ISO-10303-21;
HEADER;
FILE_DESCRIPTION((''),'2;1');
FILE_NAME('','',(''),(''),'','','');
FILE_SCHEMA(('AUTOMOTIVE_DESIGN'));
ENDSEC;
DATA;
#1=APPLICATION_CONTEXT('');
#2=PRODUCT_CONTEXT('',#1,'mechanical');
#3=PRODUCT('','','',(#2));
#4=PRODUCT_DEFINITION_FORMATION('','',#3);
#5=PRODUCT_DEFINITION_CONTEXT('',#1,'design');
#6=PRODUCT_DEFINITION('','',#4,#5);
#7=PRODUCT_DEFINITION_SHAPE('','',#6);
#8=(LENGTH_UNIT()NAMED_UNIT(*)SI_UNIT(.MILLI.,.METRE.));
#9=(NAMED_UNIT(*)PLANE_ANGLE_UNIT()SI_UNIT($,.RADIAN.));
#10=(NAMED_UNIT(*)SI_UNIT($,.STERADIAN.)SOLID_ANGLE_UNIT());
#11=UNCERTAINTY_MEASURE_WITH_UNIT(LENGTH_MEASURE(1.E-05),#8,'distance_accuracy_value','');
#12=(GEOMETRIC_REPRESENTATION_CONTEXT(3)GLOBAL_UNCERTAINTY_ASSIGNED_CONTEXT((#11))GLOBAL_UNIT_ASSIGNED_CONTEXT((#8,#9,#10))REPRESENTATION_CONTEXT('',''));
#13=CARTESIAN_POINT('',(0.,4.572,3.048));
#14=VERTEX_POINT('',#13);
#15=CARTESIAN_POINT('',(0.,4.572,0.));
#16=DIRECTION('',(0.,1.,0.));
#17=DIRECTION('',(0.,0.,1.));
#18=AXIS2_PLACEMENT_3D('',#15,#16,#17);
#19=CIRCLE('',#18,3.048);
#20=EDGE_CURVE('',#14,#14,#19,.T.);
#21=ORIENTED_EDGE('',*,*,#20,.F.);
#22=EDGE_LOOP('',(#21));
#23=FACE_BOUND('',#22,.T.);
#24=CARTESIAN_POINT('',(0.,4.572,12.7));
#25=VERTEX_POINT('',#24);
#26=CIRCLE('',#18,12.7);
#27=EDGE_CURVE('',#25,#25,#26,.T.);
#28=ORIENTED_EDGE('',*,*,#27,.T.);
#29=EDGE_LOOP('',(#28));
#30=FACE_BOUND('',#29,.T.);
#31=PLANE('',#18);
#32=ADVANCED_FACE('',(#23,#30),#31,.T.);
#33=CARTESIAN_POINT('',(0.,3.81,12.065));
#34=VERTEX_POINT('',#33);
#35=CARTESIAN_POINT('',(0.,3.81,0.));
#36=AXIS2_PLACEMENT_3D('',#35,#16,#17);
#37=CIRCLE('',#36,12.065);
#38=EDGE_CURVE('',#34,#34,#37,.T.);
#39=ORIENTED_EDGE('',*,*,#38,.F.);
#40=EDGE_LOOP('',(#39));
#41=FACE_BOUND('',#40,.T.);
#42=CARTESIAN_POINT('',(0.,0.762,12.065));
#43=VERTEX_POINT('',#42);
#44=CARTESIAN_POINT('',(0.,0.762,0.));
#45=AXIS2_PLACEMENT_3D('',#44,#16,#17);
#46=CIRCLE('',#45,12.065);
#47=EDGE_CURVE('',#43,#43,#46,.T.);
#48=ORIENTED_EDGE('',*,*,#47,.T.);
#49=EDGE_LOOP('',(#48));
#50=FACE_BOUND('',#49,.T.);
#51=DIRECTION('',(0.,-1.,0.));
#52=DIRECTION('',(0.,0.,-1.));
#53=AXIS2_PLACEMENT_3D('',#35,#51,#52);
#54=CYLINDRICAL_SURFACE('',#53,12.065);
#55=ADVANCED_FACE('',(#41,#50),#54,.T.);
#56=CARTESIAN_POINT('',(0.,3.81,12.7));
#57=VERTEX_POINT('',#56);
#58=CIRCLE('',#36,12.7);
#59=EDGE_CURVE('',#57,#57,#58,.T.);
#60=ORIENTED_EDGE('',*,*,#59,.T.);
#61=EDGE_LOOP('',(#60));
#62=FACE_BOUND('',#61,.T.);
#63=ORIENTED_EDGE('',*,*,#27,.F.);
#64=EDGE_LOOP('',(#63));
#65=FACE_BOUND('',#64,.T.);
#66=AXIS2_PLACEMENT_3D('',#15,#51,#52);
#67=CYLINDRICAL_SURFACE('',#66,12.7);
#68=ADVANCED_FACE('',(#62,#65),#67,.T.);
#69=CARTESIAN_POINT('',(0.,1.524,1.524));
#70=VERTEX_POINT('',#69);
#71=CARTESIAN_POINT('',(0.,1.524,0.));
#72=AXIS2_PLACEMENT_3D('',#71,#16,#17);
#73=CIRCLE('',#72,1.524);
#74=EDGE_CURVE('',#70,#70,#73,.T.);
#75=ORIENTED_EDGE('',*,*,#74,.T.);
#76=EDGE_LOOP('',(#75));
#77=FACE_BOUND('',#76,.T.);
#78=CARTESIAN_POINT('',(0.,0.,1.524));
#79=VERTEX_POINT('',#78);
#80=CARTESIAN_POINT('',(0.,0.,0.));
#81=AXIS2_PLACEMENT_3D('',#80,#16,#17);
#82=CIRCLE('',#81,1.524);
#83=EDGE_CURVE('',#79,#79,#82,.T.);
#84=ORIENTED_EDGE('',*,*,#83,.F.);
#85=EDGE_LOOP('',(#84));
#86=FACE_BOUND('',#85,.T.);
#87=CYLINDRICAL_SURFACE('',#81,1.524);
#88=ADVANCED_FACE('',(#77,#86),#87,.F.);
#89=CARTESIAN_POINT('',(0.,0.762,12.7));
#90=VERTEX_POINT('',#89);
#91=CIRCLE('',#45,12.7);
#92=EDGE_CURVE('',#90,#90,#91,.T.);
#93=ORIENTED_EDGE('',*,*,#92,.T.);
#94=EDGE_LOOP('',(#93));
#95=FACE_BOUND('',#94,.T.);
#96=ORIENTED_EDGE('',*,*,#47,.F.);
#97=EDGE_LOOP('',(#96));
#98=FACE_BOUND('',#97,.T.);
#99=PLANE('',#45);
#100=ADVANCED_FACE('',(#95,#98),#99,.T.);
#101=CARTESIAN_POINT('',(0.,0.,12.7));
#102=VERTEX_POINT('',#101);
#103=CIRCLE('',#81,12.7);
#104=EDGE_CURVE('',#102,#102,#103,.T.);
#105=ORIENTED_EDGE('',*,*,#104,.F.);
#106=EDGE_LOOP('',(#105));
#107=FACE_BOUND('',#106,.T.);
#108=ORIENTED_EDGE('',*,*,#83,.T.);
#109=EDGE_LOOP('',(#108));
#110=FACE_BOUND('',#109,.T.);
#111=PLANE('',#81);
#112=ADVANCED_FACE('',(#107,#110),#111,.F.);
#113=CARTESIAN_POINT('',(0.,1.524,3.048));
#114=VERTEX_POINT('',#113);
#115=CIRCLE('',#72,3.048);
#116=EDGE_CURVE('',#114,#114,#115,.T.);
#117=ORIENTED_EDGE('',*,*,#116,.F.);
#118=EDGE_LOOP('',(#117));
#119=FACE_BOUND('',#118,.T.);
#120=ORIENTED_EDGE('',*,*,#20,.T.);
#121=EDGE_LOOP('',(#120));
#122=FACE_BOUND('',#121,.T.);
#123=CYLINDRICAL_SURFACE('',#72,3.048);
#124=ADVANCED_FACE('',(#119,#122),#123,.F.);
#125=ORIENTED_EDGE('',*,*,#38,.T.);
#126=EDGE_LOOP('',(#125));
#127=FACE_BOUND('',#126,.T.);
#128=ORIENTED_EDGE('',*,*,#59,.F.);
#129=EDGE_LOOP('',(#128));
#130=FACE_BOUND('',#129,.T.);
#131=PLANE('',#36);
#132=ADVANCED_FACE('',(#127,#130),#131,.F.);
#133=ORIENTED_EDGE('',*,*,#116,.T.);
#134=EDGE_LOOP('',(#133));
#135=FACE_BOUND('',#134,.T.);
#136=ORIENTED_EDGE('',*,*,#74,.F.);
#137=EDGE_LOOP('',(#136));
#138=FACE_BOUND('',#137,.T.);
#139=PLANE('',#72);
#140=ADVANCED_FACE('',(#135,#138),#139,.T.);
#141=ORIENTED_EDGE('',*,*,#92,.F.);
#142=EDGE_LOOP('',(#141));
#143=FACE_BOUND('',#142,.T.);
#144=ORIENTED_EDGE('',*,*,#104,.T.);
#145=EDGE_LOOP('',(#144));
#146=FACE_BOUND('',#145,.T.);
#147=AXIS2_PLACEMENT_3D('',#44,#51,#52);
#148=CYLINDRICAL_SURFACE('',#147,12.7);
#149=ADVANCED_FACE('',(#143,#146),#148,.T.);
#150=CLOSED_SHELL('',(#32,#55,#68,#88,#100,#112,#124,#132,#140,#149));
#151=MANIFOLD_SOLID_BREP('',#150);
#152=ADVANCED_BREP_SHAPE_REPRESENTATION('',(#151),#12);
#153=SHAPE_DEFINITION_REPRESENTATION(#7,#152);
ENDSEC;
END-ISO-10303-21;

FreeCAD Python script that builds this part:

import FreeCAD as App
import Part
import Sketcher
Q = App.Units.Quantity

doc = App.newDocument("Part")
body = doc.addObject("PartDesign::Body", "Body")

# Sketch on XZ plane
sketch1 = body.newObject("Sketcher::SketchObject", "Sketch")
sketch1.AttachmentSupport = (doc.getObject("XZ_Plane"), [""])
sketch1.MapMode = "FlatFace"
sketch1.addGeometry(Part.Circle(App.Vector(0, 0, 0), App.Vector(0, 0, 1), 13), False)
sketch1.addConstraint(Sketcher.Constraint("Coincident", 0, 3, -1, 1))
sketch1.addConstraint(Sketcher.Constraint("Diameter", 0, Q("1 in")))
pad1 = body.newObject("PartDesign::Pad", "Pad")
pad1.Profile = sketch1
pad1.Length = Q("0.03 in")
pad1.Reversed = True

# Sketch on XZ plane
sketch2 = body.newObject("Sketcher::SketchObject", "Sketch001")
sketch2.AttachmentSupport = (doc.getObject("XZ_Plane"), [""])
sketch2.MapMode = "FlatFace"
sketch2.AttachmentOffset = App.Placement(App.Vector(0, 0, -0.03 * 25.4), App.Rotation())
sketch2.addGeometry(Part.Circle(App.Vector(0, 0, 0), App.Vector(0, 0, 1), 12), False)
sketch2.addConstraint(Sketcher.Constraint("Coincident", 0, 3, -1, 1))
sketch2.addConstraint(Sketcher.Constraint("Diameter", 0, Q("0.95 in")))
pad2 = body.newObject("PartDesign::Pad", "Pad001")
pad2.Profile = sketch2
pad2.Length = Q("0.12 in")
pad2.Reversed = True

# Sketch on XZ plane
sketch3 = body.newObject("Sketcher::SketchObject", "Sketch002")
sketch3.AttachmentSupport = (doc.getObject("XZ_Plane"), [""])
sketch3.MapMode = "FlatFace"
sketch3.AttachmentOffset = App.Placement(App.Vector(0, 0, -0.15 * 25.4), App.Rotation())
sketch3.addGeometry(Part.Circle(App.Vector(0, 0, 0), App.Vector(0, 0, 1), 13), False)
sketch3.addConstraint(Sketcher.Constraint("Coincident", 0, 3, -1, 1))
sketch3.addConstraint(Sketcher.Constraint("Diameter", 0, Q("1 in")))
pad3 = body.newObject("PartDesign::Pad", "Pad002")
pad3.Profile = sketch3
pad3.Length = Q("0.03 in")
pad3.Reversed = True

# Sketch on XZ plane
sketch4 = body.newObject("Sketcher::SketchObject", "Sketch003")
sketch4.AttachmentSupport = (doc.getObject("XZ_Plane"), [""])
sketch4.MapMode = "FlatFace"
sketch4.AttachmentOffset = App.Placement(App.Vector(0, 0, -0.18 * 25.4), App.Rotation())
sketch4.addGeometry(Part.Circle(App.Vector(0, 0, 0), App.Vector(0, 0, 1), 3), False)
sketch4.addConstraint(Sketcher.Constraint("Coincident", 0, 3, -1, 1))
sketch4.addConstraint(Sketcher.Constraint("Diameter", 0, Q("0.24 in")))
pocket1 = body.newObject("PartDesign::Pocket", "Pocket")
pocket1.Profile = sketch4
pocket1.Length = Q("0.12 in")
pocket1.Reversed = True

# Sketch on XZ plane
sketch5 = body.newObject("Sketcher::SketchObject", "Sketch004")
sketch5.AttachmentSupport = (doc.getObject("XZ_Plane"), [""])
sketch5.MapMode = "FlatFace"
sketch5.AttachmentOffset = App.Placement(App.Vector(0, 0, -0.06 * 25.4), App.Rotation())
sketch5.addGeometry(Part.Circle(App.Vector(0, 0, 0), App.Vector(0, 0, 1), 1.5), False)
sketch5.addConstraint(Sketcher.Constraint("Coincident", 0, 3, -1, 1))
sketch5.addConstraint(Sketcher.Constraint("Diameter", 0, Q("0.12 in")))
pocket2 = body.newObject("PartDesign::Pocket", "Pocket001")
pocket2.Profile = sketch5
pocket2.Type = "ThroughAll"
pocket2.Reversed = True

doc.recompute()
